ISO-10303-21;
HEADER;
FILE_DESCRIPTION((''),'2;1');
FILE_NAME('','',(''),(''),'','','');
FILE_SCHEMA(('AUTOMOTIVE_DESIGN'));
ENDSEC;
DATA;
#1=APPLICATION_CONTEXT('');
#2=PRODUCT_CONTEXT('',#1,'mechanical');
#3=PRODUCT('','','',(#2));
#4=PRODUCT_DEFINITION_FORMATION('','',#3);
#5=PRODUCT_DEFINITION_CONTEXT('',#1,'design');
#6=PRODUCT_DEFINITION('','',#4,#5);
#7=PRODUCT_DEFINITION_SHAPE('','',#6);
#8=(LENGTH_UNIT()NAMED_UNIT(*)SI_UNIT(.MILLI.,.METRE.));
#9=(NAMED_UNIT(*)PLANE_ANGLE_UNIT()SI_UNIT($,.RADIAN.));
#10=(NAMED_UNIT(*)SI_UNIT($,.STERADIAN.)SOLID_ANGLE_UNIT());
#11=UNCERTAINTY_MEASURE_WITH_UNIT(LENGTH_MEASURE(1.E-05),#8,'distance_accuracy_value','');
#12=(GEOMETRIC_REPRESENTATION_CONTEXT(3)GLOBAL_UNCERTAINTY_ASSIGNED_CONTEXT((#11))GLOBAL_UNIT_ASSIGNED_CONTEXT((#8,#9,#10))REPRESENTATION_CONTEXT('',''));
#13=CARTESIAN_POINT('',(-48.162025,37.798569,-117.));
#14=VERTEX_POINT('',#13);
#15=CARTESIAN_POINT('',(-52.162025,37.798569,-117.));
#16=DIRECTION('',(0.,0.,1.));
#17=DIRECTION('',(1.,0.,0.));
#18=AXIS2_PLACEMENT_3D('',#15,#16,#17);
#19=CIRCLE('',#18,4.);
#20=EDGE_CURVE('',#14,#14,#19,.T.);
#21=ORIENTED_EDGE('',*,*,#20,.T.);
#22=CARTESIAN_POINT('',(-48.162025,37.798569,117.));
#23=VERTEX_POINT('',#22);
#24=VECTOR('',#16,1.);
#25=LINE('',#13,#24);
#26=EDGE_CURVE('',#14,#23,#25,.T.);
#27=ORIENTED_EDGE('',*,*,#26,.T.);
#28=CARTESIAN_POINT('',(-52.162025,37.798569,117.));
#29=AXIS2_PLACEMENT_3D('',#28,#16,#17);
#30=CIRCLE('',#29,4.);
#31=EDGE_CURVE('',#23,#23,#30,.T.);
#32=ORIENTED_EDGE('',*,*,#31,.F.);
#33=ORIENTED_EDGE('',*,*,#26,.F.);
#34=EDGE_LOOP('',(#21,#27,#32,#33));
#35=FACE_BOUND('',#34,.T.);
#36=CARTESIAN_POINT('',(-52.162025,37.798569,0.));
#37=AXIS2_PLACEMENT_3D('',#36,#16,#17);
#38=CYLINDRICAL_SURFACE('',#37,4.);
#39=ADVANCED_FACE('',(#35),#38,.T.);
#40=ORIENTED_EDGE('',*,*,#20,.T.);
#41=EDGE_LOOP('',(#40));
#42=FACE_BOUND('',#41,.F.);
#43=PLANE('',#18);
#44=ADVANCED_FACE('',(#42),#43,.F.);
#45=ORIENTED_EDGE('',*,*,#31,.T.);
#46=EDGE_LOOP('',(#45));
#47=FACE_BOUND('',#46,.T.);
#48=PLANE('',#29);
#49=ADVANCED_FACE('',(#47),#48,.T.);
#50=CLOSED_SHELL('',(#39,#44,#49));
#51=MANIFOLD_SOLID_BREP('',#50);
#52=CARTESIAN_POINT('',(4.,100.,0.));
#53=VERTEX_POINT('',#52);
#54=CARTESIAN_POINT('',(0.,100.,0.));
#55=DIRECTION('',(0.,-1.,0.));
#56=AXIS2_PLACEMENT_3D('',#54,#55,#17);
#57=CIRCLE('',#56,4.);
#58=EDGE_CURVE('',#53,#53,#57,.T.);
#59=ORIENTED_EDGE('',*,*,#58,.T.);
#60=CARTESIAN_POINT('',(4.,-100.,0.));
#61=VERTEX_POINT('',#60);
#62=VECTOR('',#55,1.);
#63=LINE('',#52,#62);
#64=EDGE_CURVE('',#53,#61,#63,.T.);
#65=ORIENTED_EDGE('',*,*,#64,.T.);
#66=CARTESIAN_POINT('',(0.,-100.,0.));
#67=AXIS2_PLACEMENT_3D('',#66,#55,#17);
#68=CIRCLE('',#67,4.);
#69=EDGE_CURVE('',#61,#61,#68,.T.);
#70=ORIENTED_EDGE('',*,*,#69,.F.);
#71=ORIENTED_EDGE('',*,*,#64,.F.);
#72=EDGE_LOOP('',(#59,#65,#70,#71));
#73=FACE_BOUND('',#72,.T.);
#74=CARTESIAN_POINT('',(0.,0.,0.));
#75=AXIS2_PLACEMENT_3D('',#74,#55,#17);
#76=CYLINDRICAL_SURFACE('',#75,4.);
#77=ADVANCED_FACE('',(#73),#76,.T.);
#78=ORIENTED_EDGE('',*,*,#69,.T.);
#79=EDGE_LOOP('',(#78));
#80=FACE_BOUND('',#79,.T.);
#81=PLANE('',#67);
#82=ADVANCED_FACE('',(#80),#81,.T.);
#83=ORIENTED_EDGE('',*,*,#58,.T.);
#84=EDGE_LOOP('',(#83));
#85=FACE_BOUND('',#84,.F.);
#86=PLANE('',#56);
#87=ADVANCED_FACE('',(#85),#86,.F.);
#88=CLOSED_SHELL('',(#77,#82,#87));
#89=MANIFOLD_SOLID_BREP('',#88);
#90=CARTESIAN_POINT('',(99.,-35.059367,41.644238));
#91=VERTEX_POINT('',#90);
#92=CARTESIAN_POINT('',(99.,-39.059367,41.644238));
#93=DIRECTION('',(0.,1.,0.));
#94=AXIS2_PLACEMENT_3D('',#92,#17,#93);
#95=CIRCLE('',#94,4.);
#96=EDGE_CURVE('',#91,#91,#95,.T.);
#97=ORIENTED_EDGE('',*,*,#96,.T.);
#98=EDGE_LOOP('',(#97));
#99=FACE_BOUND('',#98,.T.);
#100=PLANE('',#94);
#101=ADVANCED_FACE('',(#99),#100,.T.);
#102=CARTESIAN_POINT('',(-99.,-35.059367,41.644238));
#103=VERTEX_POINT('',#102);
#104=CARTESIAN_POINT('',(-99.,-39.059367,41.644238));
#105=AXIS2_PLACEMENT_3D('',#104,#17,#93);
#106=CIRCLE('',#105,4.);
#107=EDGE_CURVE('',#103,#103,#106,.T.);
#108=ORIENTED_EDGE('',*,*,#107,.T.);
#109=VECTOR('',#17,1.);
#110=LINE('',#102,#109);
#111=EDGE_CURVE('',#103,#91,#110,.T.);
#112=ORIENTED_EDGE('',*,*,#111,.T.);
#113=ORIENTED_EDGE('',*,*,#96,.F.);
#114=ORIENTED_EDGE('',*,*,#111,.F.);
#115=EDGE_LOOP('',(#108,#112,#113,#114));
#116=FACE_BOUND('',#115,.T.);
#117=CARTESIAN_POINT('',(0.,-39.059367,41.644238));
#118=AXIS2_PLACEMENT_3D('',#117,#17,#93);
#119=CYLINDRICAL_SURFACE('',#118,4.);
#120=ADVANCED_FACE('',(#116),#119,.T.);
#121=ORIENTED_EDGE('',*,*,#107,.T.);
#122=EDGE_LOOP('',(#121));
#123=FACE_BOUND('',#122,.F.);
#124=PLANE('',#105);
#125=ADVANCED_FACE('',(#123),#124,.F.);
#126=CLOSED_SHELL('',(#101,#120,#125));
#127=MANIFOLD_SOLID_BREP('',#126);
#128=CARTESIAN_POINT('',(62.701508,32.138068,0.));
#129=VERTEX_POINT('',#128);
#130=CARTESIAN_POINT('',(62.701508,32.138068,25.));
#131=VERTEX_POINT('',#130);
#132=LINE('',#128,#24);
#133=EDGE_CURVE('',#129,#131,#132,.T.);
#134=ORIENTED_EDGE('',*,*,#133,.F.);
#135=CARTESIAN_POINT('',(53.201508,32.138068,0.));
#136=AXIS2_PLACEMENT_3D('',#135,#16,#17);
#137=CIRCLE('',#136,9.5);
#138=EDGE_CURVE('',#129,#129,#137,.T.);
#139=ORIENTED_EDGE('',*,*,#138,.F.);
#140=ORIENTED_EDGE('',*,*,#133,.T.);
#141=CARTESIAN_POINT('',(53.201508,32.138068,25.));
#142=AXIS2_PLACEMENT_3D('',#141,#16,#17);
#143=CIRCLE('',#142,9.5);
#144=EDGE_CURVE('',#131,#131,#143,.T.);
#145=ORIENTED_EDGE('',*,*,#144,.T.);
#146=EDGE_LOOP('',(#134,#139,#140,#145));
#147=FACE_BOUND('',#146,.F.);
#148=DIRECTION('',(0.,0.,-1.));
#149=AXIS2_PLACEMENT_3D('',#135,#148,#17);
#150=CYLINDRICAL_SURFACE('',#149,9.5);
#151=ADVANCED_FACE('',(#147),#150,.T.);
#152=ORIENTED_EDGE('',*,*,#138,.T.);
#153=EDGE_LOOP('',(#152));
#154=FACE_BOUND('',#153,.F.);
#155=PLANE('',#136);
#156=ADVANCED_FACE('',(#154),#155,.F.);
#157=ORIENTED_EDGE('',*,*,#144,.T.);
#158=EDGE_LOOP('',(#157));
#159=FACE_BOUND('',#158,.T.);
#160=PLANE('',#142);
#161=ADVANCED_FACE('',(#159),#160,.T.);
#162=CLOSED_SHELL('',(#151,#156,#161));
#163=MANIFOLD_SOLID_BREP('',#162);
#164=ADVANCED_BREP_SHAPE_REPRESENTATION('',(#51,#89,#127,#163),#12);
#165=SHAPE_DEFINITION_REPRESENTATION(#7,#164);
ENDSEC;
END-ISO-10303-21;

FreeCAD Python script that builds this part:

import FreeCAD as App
import Part
import Sketcher

V = App.Vector

doc = App.newDocument("Part")
body = doc.addObject("PartDesign::Body", "Body")

sketch1 = body.newObject("Sketcher::SketchObject", "Sketch")
sketch1.AttachmentSupport = (doc.getObject("XZ_Plane"), [""])
sketch1.MapMode = "FlatFace"
sketch1.addGeometry(Part.Circle(V(0, 0, 0), V(0, 0, 1), 4), False)
sketch1.addConstraint([
    Sketcher.Constraint("Coincident", 0, 3, -1, 1),
    Sketcher.Constraint("Diameter", 0, 8.0),
])
pad1 = body.newObject("PartDesign::Pad", "Pad")
pad1.Profile = sketch1
pad1.Length = 200
pad1.Midplane = True
body2 = doc.addObject("PartDesign::Body", "Body001")

sketch2 = body2.newObject("Sketcher::SketchObject", "Sketch001")
sketch2.AttachmentSupport = (doc.getObject("XY_Plane001"), [""])
sketch2.MapMode = "FlatFace"
sketch2.addGeometry(Part.Circle(V(-52.2, 37.8, 0), V(0, 0, 1), 4), False)
sketch2.addConstraint([
    Sketcher.Constraint("Diameter", 0, 8.0),
    Sketcher.Constraint("DistanceY", -1, 1, 0, 3, 37.798569),
    Sketcher.Constraint("DistanceX", 0, 3, -1, 1, 52.162025),
])
pad2 = body2.newObject("PartDesign::Pad", "Pad001")
pad2.Profile = sketch2
pad2.Length = 234
pad2.Midplane = True
body3 = doc.addObject("PartDesign::Body", "Body002")

sketch3 = body3.newObject("Sketcher::SketchObject", "Sketch002")
sketch3.AttachmentSupport = (doc.getObject("YZ_Plane002"), [""])
sketch3.MapMode = "FlatFace"
sketch3.addGeometry(Part.Circle(V(-39.1, 41.6, 0), V(0, 0, 1), 4), False)
sketch3.addConstraint([
    Sketcher.Constraint("Diameter", 0, 8.0),
    Sketcher.Constraint("DistanceX", 0, 3, -1, 1, 39.059367),
    Sketcher.Constraint("DistanceY", -1, 1, 0, 3, 41.644238),
])
pad3 = body3.newObject("PartDesign::Pad", "Pad002")
pad3.Profile = sketch3
pad3.Length = 198
pad3.Midplane = True
body4 = doc.addObject("PartDesign::Body", "Body003")

sketch4 = body4.newObject("Sketcher::SketchObject", "Sketch003")
sketch4.AttachmentSupport = (doc.getObject("XY_Plane003"), [""])
sketch4.MapMode = "FlatFace"
sketch4.addGeometry(Part.Circle(V(53, 32, 0), V(0, 0, 1), 10), False)
sketch4.addConstraint([
    Sketcher.Constraint("Diameter", 0, 19.0),
    Sketcher.Constraint("DistanceY", -1, 1, 0, 3, 32.138068),
    Sketcher.Constraint("DistanceX", -1, 1, 0, 3, 53.201508),
])
pad4 = body4.newObject("PartDesign::Pad", "Pad003")
pad4.Profile = sketch4
pad4.Length = 25

doc.recompute()
